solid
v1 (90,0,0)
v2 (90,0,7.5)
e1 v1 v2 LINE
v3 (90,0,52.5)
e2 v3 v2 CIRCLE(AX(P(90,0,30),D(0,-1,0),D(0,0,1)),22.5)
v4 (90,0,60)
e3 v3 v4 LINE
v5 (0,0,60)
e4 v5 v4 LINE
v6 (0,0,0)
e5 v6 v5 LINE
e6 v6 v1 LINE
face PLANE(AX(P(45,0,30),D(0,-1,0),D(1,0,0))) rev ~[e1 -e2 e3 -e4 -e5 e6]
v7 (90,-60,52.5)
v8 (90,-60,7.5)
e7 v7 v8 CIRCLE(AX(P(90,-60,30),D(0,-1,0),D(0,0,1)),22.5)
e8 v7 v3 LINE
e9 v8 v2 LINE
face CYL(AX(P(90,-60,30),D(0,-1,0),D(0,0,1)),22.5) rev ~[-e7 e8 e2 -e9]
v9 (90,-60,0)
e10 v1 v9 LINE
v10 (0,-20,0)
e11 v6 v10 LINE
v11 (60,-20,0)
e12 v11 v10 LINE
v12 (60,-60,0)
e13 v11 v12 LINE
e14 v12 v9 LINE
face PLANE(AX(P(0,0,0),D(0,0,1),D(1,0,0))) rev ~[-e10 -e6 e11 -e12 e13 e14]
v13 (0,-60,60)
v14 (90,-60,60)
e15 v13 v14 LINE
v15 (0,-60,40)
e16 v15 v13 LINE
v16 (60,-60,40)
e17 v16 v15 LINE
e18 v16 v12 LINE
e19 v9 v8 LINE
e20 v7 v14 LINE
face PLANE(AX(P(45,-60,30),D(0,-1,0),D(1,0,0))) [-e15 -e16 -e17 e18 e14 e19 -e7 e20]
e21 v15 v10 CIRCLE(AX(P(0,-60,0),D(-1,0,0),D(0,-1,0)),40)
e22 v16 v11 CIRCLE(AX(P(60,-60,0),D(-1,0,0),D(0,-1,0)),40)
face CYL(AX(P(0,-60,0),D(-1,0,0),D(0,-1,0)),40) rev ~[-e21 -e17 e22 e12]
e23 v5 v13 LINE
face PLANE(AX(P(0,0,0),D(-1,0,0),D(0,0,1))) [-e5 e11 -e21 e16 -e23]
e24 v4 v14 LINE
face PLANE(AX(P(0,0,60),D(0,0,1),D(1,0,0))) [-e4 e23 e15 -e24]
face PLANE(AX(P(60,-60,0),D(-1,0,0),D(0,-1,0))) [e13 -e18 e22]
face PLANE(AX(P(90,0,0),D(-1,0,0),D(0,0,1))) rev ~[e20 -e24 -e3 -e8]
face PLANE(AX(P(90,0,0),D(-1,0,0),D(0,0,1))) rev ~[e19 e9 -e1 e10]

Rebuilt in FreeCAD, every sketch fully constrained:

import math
import FreeCAD as App
import Part
import Sketcher
from FreeCAD import Vector
Q = App.Units.Quantity


def add_polygon(sketch, points):
    """Adds a closed chain of lines whose ends are joined by coincident constraints."""
    first, n = sketch.GeometryCount, len(points)
    for a, b in zip(points, points[1:] + points[:1]):
        sketch.addGeometry(Part.LineSegment(App.Vector(*a, 0), App.Vector(*b, 0)), False)
    for i in range(n):
        sketch.addConstraint(Sketcher.Constraint("Coincident", first + i, 2, first + (i + 1) % n, 1))

doc = App.newDocument("Part")
params = doc.addObject("Spreadsheet::Sheet", "Params")
for row, (alias, value) in enumerate([
    ("sketch1_width", "90 mm"),
    ("sketch1_height", "60 mm"),
    ("pad1_length", "60 mm"),
    ("sketch2_radius", "22.5 mm"),
    ("sketch3_diameter", "80 mm"),
    ("pocket2_length", "60 mm"),
], start=1):
    params.set(f"A{row}", alias)
    params.set(f"B{row}", "=" + value)
    params.setAlias(f"B{row}", alias)

body = doc.addObject("PartDesign::Body", "Body")

# Sketch on XZ plane
sketch1 = body.newObject("Sketcher::SketchObject", "Sketch")
sketch1.AttachmentSupport = (doc.getObject("XZ_Plane"), [""])
sketch1.MapMode = "FlatFace"
add_polygon(sketch1, [(0, 60), (0, 0), (90, 0), (90, 60)])  # lines 0-3
sketch1.addConstraint([
    Sketcher.Constraint("Vertical", 0),
    Sketcher.Constraint("Horizontal", 1),
    Sketcher.Constraint("Vertical", 2),
    Sketcher.Constraint("Horizontal", 3),
    Sketcher.Constraint("Coincident", 0, 2, -1, 1),
    Sketcher.Constraint("DistanceX", 1, 1, 1, 2, Q("90 mm")),
    Sketcher.Constraint("DistanceY", 0, 2, 0, 1, Q("60 mm")),
])
sketch1.setExpression("Constraints[9]", "Params.sketch1_width")
sketch1.setExpression("Constraints[10]", "Params.sketch1_height")
pad1 = body.newObject("PartDesign::Pad", "Pad")
pad1.Profile = sketch1
pad1.setExpression("Length", "Params.pad1_length")

# Sketch on XZ plane
sketch2 = body.newObject("Sketcher::SketchObject", "Sketch001")
sketch2.AttachmentSupport = (doc.getObject("XZ_Plane"), [""])
sketch2.MapMode = "FlatFace"
sketch2.AttachmentOffset = App.Placement(Vector(0, 0, 60), App.Rotation())
sketch2.addGeometry([
    Part.LineSegment(Vector(90, 7.5, 0), Vector(90, 52.5, 0)),
    Part.ArcOfCircle(Part.Circle(Vector(90, 30, 0), Vector(0, 0, 1), 22.5), math.radians(90), math.radians(270)),
], False)
sketch2.addConstraint([
    Sketcher.Constraint("Coincident", 0, 1, 1, 2),
    Sketcher.Constraint("Coincident", 1, 1, 0, 2),
    Sketcher.Constraint("Vertical", 0),
    Sketcher.Constraint("Vertical", 1, 3, 0, 1),
    Sketcher.Constraint("Radius", 1, Q("22.5 mm")),
    Sketcher.Constraint("DistanceX", -1, 1, 1, 3, Q("90 mm")),
    Sketcher.Constraint("DistanceY", -1, 1, 1, 3, Q("30 mm")),
])
sketch2.setExpression("Constraints[4]", "Params.sketch2_radius")
pocket1 = body.newObject("PartDesign::Pocket", "Pocket")
pocket1.Profile = sketch2
pocket1.Type = "ThroughAll"

# Sketch on YZ plane
sketch3 = body.newObject("Sketcher::SketchObject", "Sketch002")
sketch3.AttachmentSupport = (doc.getObject("YZ_Plane"), [""])
sketch3.MapMode = "FlatFace"
sketch3.addGeometry(Part.Circle(Vector(-60, 0, 0), Vector(0, 0, 1), 40), False)
sketch3.addConstraint([
    Sketcher.Constraint("PointOnObject", 0, 3, -1),
    Sketcher.Constraint("Diameter", 0, Q("80 mm")),
    Sketcher.Constraint("DistanceX", 0, 3, -1, 1, Q("60 mm")),
])
sketch3.setExpression("Constraints[1]", "Params.sketch3_diameter")
pocket2 = body.newObject("PartDesign::Pocket", "Pocket001")
pocket2.Profile = sketch3
pocket2.setExpression("Length", "Params.pocket2_length")
pocket2.Reversed = True

doc.recompute()
